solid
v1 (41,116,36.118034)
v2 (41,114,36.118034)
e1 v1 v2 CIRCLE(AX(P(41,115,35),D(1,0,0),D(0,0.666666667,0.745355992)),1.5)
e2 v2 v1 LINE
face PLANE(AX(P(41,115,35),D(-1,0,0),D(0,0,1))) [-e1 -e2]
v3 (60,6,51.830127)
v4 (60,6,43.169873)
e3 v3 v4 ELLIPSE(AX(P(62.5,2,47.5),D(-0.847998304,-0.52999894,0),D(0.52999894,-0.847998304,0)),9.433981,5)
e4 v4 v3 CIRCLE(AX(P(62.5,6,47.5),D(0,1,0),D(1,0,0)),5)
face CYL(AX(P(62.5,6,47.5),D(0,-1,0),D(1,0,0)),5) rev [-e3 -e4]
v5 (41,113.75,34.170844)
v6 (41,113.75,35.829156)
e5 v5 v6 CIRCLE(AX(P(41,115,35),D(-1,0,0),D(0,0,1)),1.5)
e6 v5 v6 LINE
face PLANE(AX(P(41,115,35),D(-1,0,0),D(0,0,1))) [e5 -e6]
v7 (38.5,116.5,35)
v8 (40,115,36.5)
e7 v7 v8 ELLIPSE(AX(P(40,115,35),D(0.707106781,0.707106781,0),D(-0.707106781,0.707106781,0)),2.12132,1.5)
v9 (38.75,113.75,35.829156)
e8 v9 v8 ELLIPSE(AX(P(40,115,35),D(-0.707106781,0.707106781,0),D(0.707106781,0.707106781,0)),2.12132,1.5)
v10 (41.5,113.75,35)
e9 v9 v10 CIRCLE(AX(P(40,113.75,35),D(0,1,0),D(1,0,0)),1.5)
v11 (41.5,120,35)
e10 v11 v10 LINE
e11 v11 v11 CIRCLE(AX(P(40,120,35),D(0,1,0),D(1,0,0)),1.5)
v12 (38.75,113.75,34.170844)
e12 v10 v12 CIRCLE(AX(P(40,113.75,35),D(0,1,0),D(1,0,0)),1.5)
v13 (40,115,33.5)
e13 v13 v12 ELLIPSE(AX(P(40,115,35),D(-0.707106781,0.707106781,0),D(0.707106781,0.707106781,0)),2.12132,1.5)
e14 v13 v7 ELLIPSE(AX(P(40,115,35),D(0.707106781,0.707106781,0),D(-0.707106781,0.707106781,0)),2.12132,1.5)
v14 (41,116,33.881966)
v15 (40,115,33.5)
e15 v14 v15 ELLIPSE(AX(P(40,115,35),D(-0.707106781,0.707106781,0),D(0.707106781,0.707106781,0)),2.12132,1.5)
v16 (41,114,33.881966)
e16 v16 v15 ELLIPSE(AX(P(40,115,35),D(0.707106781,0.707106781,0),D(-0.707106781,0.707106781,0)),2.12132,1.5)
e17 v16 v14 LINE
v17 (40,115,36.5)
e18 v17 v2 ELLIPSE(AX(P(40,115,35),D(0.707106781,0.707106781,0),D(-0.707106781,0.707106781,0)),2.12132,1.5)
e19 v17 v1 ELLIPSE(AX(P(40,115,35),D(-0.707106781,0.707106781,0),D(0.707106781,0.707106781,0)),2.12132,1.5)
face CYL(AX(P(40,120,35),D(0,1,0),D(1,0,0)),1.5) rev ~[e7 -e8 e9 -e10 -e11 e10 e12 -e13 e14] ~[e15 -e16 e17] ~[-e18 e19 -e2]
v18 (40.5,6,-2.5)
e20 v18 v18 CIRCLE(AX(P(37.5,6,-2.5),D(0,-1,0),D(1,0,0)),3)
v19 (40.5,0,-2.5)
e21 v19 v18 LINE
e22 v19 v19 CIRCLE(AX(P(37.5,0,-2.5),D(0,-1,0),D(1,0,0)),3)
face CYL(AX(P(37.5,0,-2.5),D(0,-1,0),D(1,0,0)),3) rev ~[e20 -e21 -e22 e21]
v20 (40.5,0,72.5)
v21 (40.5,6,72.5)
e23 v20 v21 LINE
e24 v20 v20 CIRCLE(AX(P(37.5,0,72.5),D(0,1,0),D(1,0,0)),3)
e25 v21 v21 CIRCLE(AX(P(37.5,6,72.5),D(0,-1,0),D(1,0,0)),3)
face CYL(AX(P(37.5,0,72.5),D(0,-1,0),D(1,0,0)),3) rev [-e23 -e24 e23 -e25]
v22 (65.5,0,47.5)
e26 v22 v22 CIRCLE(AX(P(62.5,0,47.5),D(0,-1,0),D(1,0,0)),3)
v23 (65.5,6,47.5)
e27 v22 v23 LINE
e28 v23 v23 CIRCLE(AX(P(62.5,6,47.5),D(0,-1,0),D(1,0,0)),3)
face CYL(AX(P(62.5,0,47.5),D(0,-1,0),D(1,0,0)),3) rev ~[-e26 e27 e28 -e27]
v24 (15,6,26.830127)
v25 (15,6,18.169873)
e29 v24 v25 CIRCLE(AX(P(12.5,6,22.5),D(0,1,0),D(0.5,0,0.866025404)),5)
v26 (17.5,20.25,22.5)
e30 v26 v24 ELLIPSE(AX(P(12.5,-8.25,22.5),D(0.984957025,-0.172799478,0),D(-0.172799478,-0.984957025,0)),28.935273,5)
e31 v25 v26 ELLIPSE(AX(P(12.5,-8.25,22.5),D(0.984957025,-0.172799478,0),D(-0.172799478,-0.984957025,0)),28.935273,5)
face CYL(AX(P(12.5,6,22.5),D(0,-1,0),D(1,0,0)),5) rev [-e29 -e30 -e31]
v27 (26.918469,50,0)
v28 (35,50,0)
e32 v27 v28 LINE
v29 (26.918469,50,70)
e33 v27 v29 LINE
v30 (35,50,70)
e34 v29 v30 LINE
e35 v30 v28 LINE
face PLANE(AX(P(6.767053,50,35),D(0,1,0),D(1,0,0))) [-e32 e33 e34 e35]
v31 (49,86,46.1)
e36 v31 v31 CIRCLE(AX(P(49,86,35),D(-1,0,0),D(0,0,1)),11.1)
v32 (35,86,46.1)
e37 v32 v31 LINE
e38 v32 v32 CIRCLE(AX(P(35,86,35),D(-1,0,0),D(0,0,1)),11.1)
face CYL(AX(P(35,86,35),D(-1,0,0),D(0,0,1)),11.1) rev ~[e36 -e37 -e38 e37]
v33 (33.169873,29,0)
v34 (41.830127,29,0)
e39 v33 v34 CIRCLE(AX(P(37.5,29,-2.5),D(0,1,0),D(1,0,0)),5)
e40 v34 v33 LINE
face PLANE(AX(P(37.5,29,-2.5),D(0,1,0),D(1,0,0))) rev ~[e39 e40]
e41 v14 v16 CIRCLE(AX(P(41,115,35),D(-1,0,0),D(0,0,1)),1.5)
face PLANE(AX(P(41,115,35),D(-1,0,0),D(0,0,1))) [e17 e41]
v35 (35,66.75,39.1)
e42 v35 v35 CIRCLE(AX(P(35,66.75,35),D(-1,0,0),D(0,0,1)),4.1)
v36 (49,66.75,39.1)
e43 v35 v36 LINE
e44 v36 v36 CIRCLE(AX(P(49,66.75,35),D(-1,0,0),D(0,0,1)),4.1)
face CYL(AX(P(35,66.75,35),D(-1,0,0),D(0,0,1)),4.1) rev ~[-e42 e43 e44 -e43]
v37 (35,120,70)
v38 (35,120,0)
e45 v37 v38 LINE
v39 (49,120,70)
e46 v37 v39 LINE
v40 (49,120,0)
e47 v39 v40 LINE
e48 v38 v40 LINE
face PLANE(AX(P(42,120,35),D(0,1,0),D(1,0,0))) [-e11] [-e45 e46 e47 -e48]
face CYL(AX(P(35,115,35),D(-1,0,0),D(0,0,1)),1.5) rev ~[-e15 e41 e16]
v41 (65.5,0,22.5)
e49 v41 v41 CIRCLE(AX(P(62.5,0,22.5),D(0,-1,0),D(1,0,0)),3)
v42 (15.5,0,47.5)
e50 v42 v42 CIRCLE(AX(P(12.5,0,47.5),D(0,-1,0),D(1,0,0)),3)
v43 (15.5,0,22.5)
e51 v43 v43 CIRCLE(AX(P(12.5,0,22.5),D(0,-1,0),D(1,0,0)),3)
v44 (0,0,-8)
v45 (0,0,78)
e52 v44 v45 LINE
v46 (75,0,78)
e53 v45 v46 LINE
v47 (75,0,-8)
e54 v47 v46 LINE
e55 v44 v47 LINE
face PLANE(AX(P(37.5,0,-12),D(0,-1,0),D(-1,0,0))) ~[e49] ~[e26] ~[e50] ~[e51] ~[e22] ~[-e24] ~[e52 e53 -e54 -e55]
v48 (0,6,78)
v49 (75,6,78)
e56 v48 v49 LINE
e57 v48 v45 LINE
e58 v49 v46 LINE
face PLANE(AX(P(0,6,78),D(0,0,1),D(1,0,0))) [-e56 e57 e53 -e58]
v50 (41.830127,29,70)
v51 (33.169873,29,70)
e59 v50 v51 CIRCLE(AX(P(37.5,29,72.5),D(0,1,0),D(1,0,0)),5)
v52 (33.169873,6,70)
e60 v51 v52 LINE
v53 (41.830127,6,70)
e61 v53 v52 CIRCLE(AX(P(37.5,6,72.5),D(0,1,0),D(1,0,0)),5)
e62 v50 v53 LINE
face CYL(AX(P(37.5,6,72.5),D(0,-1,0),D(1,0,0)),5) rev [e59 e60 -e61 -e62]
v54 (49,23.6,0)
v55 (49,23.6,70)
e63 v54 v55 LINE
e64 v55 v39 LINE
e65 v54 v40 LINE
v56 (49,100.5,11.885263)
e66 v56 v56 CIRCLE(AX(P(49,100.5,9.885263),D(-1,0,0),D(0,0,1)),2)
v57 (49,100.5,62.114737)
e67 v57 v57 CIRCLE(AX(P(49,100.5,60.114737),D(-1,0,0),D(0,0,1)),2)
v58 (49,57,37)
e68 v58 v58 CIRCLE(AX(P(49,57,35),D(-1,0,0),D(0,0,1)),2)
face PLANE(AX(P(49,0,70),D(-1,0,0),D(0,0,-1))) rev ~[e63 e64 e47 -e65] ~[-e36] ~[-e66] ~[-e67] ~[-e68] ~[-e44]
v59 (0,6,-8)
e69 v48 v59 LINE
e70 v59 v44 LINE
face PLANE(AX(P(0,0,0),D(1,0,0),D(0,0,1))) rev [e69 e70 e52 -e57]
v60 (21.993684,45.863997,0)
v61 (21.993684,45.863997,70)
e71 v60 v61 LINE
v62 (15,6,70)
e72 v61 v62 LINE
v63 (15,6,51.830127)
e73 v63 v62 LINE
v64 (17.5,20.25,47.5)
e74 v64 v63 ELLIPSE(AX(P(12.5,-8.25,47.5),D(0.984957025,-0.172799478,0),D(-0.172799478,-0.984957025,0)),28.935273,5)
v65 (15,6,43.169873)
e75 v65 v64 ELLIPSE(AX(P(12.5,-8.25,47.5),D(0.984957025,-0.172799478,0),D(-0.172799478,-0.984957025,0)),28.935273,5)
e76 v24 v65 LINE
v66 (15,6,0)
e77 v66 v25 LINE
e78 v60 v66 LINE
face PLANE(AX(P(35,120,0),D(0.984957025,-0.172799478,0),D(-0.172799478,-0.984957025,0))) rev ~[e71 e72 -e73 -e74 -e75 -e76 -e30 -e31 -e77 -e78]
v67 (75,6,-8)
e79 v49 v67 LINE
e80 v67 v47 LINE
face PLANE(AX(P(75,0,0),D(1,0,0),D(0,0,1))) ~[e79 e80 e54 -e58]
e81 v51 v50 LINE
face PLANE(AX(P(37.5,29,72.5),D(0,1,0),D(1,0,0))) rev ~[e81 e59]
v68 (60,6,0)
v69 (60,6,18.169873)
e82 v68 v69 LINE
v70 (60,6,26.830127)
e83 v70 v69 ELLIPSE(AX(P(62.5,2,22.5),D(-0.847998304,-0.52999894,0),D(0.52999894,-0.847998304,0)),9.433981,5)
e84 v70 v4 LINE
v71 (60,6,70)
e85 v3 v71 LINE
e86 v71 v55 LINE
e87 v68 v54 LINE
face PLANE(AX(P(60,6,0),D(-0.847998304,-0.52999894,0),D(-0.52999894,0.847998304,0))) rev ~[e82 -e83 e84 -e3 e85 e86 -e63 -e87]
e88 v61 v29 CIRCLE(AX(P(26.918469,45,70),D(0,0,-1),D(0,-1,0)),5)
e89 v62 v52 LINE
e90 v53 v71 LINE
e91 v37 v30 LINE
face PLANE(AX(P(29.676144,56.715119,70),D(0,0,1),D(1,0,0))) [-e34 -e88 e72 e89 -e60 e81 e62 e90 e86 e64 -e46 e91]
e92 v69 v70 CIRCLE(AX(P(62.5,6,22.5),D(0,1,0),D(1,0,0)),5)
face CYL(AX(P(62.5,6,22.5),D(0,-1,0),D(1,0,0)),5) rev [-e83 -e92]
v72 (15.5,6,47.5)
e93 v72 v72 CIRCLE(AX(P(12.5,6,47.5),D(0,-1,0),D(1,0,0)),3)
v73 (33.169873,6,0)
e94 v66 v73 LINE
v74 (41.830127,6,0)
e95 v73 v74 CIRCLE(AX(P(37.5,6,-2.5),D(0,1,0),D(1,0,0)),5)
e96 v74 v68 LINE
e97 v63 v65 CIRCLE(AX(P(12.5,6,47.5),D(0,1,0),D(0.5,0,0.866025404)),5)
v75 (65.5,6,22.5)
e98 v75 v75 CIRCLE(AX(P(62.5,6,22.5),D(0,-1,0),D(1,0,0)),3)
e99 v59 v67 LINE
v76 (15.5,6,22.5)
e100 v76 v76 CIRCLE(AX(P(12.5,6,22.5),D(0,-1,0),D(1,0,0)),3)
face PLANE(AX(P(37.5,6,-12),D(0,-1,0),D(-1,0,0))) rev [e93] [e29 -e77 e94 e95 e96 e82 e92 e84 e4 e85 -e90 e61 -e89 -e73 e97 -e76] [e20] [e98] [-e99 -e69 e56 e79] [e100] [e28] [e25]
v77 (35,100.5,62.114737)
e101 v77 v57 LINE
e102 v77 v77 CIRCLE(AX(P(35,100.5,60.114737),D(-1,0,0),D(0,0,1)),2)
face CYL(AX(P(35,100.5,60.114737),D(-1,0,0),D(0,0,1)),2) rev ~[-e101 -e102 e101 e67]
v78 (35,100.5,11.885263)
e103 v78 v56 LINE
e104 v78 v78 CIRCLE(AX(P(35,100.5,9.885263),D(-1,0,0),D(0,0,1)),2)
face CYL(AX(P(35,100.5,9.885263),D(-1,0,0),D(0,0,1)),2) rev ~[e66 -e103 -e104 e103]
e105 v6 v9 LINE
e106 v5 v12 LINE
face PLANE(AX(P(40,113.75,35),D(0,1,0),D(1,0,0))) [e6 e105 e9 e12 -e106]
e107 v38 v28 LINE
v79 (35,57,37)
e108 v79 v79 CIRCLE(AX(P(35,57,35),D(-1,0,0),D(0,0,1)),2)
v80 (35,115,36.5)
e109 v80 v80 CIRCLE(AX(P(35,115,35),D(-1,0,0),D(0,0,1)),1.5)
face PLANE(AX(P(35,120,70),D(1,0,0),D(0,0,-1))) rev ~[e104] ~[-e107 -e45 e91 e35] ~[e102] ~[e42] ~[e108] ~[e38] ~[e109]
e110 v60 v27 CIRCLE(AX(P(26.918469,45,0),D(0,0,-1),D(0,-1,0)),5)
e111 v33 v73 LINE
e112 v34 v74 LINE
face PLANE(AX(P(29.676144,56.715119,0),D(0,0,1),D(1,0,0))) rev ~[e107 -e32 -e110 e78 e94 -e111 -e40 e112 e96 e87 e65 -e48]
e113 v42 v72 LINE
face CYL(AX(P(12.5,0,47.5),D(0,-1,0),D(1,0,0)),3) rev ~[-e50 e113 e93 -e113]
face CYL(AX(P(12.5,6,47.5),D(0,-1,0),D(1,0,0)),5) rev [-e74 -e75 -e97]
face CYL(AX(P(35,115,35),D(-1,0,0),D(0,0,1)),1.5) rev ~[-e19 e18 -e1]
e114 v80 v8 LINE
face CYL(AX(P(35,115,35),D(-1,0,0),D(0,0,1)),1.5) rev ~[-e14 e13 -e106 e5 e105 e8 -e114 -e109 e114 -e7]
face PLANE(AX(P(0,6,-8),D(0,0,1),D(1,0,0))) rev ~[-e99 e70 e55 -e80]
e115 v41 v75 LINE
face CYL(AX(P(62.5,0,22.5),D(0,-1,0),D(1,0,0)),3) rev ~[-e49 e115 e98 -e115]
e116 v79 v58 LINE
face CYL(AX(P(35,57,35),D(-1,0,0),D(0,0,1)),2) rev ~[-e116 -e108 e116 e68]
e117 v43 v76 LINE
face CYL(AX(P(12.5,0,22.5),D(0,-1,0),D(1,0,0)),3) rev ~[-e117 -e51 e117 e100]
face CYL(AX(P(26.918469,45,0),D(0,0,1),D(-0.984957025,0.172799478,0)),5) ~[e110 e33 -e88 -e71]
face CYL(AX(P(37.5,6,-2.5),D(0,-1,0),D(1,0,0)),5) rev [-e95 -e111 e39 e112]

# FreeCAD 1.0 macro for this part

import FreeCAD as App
import Part
import Sketcher

V = App.Vector
Q = App.Units.Quantity


def edges_at(feature, points):
    """Names of the edges that pass closest to the given points."""
    edges = feature.Shape.Edges
    near = lambda p: min(range(len(edges)), key=lambda i: edges[i].distToShape(Part.Vertex(*p))[0])
    return sorted({f"Edge{near(p) + 1}" for p in points})

doc = App.newDocument("Part")
body = doc.addObject("PartDesign::Body", "Body")

# Sketch on XZ plane
sketch1 = body.newObject("Sketcher::SketchObject", "Sketch")
sketch1.AttachmentSupport = (doc.getObject("XZ_Plane"), [""])
sketch1.MapMode = "FlatFace"
sketch1.addGeometry(Part.LineSegment(V(0, 0, 0), V(0, 70, 0)), False)
sketch1.addGeometry(Part.LineSegment(V(0, 70, 0), V(35, 70, 0)), False)
sketch1.addGeometry(Part.LineSegment(V(35, 70, 0), V(35, 0, 0)), False)
sketch1.addGeometry(Part.LineSegment(V(35, 0, 0), V(0, 0, 0)), False)
sketch1.addConstraint(Sketcher.Constraint("Coincident", 0, 2, 1, 1))
sketch1.addConstraint(Sketcher.Constraint("Coincident", 1, 2, 2, 1))
sketch1.addConstraint(Sketcher.Constraint("Coincident", 2, 2, 3, 1))
sketch1.addConstraint(Sketcher.Constraint("Coincident", 3, 2, 0, 1))
sketch1.addConstraint(Sketcher.Constraint("Vertical", 0))
sketch1.addConstraint(Sketcher.Constraint("Horizontal", 1))
sketch1.addConstraint(Sketcher.Constraint("Vertical", 2))
sketch1.addConstraint(Sketcher.Constraint("Horizontal", 3))
sketch1.addConstraint(Sketcher.Constraint("Coincident", 3, 2, -1, 1))
sketch1.addConstraint(Sketcher.Constraint("DistanceX", 1, 1, 1, 2, Q("35 mm")))
sketch1.addConstraint(Sketcher.Constraint("DistanceY", 0, 1, 0, 2, Q("70 mm")))
pad1 = body.newObject("PartDesign::Pad", "Pad")
pad1.Profile = sketch1
pad1.Length = 6
pad1.Reversed = True
body2 = doc.addObject("PartDesign::Body", "Body001")

# Sketch on XZ plane
sketch2 = body2.newObject("Sketcher::SketchObject", "Sketch001")
sketch2.AttachmentSupport = (doc.getObject("XZ_Plane001"), [""])
sketch2.MapMode = "FlatFace"
sketch2.addGeometry(Part.LineSegment(V(49, 0, 0), V(49, 70, 0)), False)
sketch2.addGeometry(Part.LineSegment(V(49, 70, 0), V(75, 70, 0)), False)
sketch2.addGeometry(Part.LineSegment(V(75, 70, 0), V(75, 0, 0)), False)
sketch2.addGeometry(Part.LineSegment(V(75, 0, 0), V(49, 0, 0)), False)
sketch2.addConstraint(Sketcher.Constraint("Coincident", 0, 2, 1, 1))
sketch2.addConstraint(Sketcher.Constraint("Coincident", 1, 2, 2, 1))
sketch2.addConstraint(Sketcher.Constraint("Coincident", 2, 2, 3, 1))
sketch2.addConstraint(Sketcher.Constraint("Coincident", 3, 2, 0, 1))
sketch2.addConstraint(Sketcher.Constraint("Vertical", 0))
sketch2.addConstraint(Sketcher.Constraint("Horizontal", 1))
sketch2.addConstraint(Sketcher.Constraint("Vertical", 2))
sketch2.addConstraint(Sketcher.Constraint("Horizontal", 3))
sketch2.addConstraint(Sketcher.Constraint("PointOnObject", 2, 2, -1))
sketch2.addConstraint(Sketcher.Constraint("DistanceX", 1, 1, 1, 2, Q("26 mm")))
sketch2.addConstraint(Sketcher.Constraint("DistanceY", 0, 1, 0, 2, Q("70 mm")))
sketch2.addConstraint(Sketcher.Constraint("DistanceX", -1, 1, 0, 2, Q("49 mm")))
pad2 = body2.newObject("PartDesign::Pad", "Pad001")
pad2.Profile = sketch2
pad2.Length = 6
pad2.Reversed = True
body.AllowCompound = True
doc.recompute()

boolean = body.newObject("PartDesign::Boolean", "Boolean")
boolean.Type = "Fuse"
boolean.addObjects([body2])

# Sketch on XZ plane
sketch3 = body.newObject("Sketcher::SketchObject", "Sketch002")
sketch3.AttachmentSupport = (doc.getObject("XZ_Plane"), [""])
sketch3.MapMode = "FlatFace"
sketch3.addGeometry(Part.LineSegment(V(35, 0, 0), V(35, 70, 0)), False)
sketch3.addGeometry(Part.LineSegment(V(35, 70, 0), V(49, 70, 0)), False)
sketch3.addGeometry(Part.LineSegment(V(49, 70, 0), V(49, 0, 0)), False)
sketch3.addGeometry(Part.LineSegment(V(49, 0, 0), V(35, 0, 0)), False)
sketch3.addConstraint(Sketcher.Constraint("Coincident", 0, 2, 1, 1))
sketch3.addConstraint(Sketcher.Constraint("Coincident", 1, 2, 2, 1))
sketch3.addConstraint(Sketcher.Constraint("Coincident", 2, 2, 3, 1))
sketch3.addConstraint(Sketcher.Constraint("Coincident", 3, 2, 0, 1))
sketch3.addConstraint(Sketcher.Constraint("Vertical", 0))
sketch3.addConstraint(Sketcher.Constraint("Horizontal", 1))
sketch3.addConstraint(Sketcher.Constraint("Vertical", 2))
sketch3.addConstraint(Sketcher.Constraint("Horizontal", 3))
sketch3.addConstraint(Sketcher.Constraint("PointOnObject", 2, 2, -1))
sketch3.addConstraint(Sketcher.Constraint("DistanceX", 1, 1, 1, 2, Q("14 mm")))
sketch3.addConstraint(Sketcher.Constraint("DistanceY", 0, 1, 0, 2, Q("70 mm")))
sketch3.addConstraint(Sketcher.Constraint("DistanceX", -1, 1, 0, 2, Q("35 mm")))
pad3 = body.newObject("PartDesign::Pad", "Pad002")
pad3.Profile = sketch3
pad3.Length = 120
pad3.Reversed = True

# Sketch on XY plane
sketch4 = body.newObject("Sketcher::SketchObject", "Sketch003")
sketch4.AttachmentSupport = (doc.getObject("XY_Plane"), [""])
sketch4.MapMode = "FlatFace"
sketch4.addGeometry(Part.LineSegment(V(35, 6, 0), V(15, 6, 0)), False)
sketch4.addGeometry(Part.LineSegment(V(15, 6, 0), V(35, 38, 0)), False)
sketch4.addGeometry(Part.LineSegment(V(35, 38, 0), V(35, 6, 0)), False)
sketch4.addGeometry(Part.LineSegment(V(40, 38, 0), V(60, 6, 0)), False)
sketch4.addGeometry(Part.LineSegment(V(60, 6, 0), V(40, 6, 0)), False)
sketch4.addGeometry(Part.LineSegment(V(40, 6, 0), V(40, 38, 0)), False)
sketch4.addConstraint(Sketcher.Constraint("Coincident", 0, 2, 1, 1))
sketch4.addConstraint(Sketcher.Constraint("Coincident", 1, 2, 2, 1))
sketch4.addConstraint(Sketcher.Constraint("Coincident", 2, 2, 0, 1))
sketch4.addConstraint(Sketcher.Constraint("Coincident", 3, 2, 4, 1))
sketch4.addConstraint(Sketcher.Constraint("Coincident", 4, 2, 5, 1))
sketch4.addConstraint(Sketcher.Constraint("Coincident", 5, 2, 3, 1))
sketch4.addConstraint(Sketcher.Constraint("Horizontal", 0))
sketch4.addConstraint(Sketcher.Constraint("Vertical", 2))
sketch4.addConstraint(Sketcher.Constraint("Horizontal", 4))
sketch4.addConstraint(Sketcher.Constraint("Vertical", 5))
sketch4.addConstraint(Sketcher.Constraint("Horizontal", 2, 2, 3, 2))
sketch4.addConstraint(Sketcher.Constraint("Horizontal", 1, 2, 5, 2))
sketch4.addConstraint(Sketcher.Constraint("Equal", 0, 4))
sketch4.addConstraint(Sketcher.Constraint("DistanceX", 0, 2, 0, 1, Q("20 mm")))
sketch4.addConstraint(Sketcher.Constraint("DistanceY", 2, 2, 2, 1, Q("32 mm")))
sketch4.addConstraint(Sketcher.Constraint("DistanceX", -1, 1, 0, 2, Q("15 mm")))
sketch4.addConstraint(Sketcher.Constraint("DistanceY", -1, 1, 0, 2, Q("6 mm")))
sketch4.addConstraint(Sketcher.Constraint("DistanceX", -1, 1, 3, 2, Q("60 mm")))
pad4 = body.newObject("PartDesign::Pad", "Pad003")
pad4.Profile = sketch4
pad4.Type = "UpToLast"

# Sketch on XY plane
sketch5 = body.newObject("Sketcher::SketchObject", "Sketch004")
sketch5.AttachmentSupport = (doc.getObject("XY_Plane"), [""])
sketch5.MapMode = "FlatFace"
sketch5.addGeometry(Part.LineSegment(V(15, 6, 0), V(35, 120, 0)), False)
sketch5.addGeometry(Part.LineSegment(V(35, 120, 0), V(35, 0, 0)), False)
sketch5.addGeometry(Part.LineSegment(V(35, 0, 0), V(15, 6, 0)), False)
sketch5.addConstraint(Sketcher.Constraint("Coincident", 0, 2, 1, 1))
sketch5.addConstraint(Sketcher.Constraint("Coincident", 1, 2, 2, 1))
sketch5.addConstraint(Sketcher.Constraint("Coincident", 2, 2, 0, 1))
sketch5.addConstraint(Sketcher.Constraint("Vertical", 1))
sketch5.addConstraint(Sketcher.Constraint("PointOnObject", 1, 2, -1))
sketch5.addConstraint(Sketcher.Constraint("DistanceY", 1, 2, 1, 1, Q("120 mm")))
sketch5.addConstraint(Sketcher.Constraint("DistanceX", -1, 1, 0, 2, Q("35 mm")))
sketch5.addConstraint(Sketcher.Constraint("DistanceX", -1, 1, 2, 2, Q("15 mm")))
sketch5.addConstraint(Sketcher.Constraint("DistanceY", -1, 1, 2, 2, Q("6 mm")))
pad5 = body.newObject("PartDesign::Pad", "Pad004")
pad5.Profile = sketch5
pad5.Length = 70

# Sketch on XZ plane
sketch6 = body.newObject("Sketcher::SketchObject", "Sketch005")
sketch6.AttachmentSupport = (doc.getObject("XZ_Plane"), [""])
sketch6.MapMode = "FlatFace"
sketch6.addGeometry(Part.Circle(V(62.5, 47.5, 0), V(0, 0, 1), 3), False)
sketch6.addGeometry(Part.Circle(V(62.5, 22.5, 0), V(0, 0, 1), 3), False)
sketch6.addGeometry(Part.Circle(V(12.5, 22.5, 0), V(0, 0, 1), 3), False)
sketch6.addGeometry(Part.Circle(V(12.5, 47.5, 0), V(0, 0, 1), 3), False)
sketch6.addConstraint(Sketcher.Constraint("Equal", 0, 1))
sketch6.addConstraint(Sketcher.Constraint("Equal", 1, 2))
sketch6.addConstraint(Sketcher.Constraint("Equal", 2, 3))
sketch6.addConstraint(Sketcher.Constraint("Horizontal", 1, 3, 2, 3))
sketch6.addConstraint(Sketcher.Constraint("Horizontal", 0, 3, 3, 3))
sketch6.addConstraint(Sketcher.Constraint("Vertical", 0, 3, 1, 3))
sketch6.addConstraint(Sketcher.Constraint("Vertical", 2, 3, 3, 3))
sketch6.addConstraint(Sketcher.Constraint("Diameter", 0, Q("6 mm")))
sketch6.addConstraint(Sketcher.Constraint("DistanceY", 1, 3, 0, 3, Q("25 mm")))
sketch6.addConstraint(Sketcher.Constraint("DistanceX", 2, 3, 1, 3, Q("50 mm")))
sketch6.addConstraint(Sketcher.Constraint("DistanceX", -1, 1, 0, 3, Q("62.5 mm")))
sketch6.addConstraint(Sketcher.Constraint("DistanceY", -1, 1, 0, 3, Q("47.5 mm")))
pocket1 = body.newObject("PartDesign::Pocket", "Pocket")
pocket1.Profile = sketch6
pocket1.Type = "ThroughAll"

# Sketch on XZ plane
sketch7 = body.newObject("Sketcher::SketchObject", "Sketch006")
sketch7.AttachmentSupport = (doc.getObject("XZ_Plane"), [""])
sketch7.MapMode = "FlatFace"
sketch7.AttachmentOffset = App.Placement(V(0, 0, -6), App.Rotation())
sketch7.addGeometry(Part.Circle(V(12.5, 47.5, 0), V(0, 0, 1), 5), False)
sketch7.addGeometry(Part.Circle(V(12.5, 22.5, 0), V(0, 0, 1), 5), False)
sketch7.addGeometry(Part.Circle(V(62.5, 47.5, 0), V(0, 0, 1), 5), False)
sketch7.addGeometry(Part.Circle(V(62.5, 22.5, 0), V(0, 0, 1), 5), False)
sketch7.addConstraint(Sketcher.Constraint("Equal", 0, 1))
sketch7.addConstraint(Sketcher.Constraint("Equal", 1, 2))
sketch7.addConstraint(Sketcher.Constraint("Equal", 2, 3))
sketch7.addConstraint(Sketcher.Constraint("Horizontal", 0, 3, 2, 3))
sketch7.addConstraint(Sketcher.Constraint("Horizontal", 1, 3, 3, 3))
sketch7.addConstraint(Sketcher.Constraint("Vertical", 0, 3, 1, 3))
sketch7.addConstraint(Sketcher.Constraint("Vertical", 2, 3, 3, 3))
sketch7.addConstraint(Sketcher.Constraint("Diameter", 0, Q("10 mm")))
sketch7.addConstraint(Sketcher.Constraint("DistanceY", 1, 3, 0, 3, Q("25 mm")))
sketch7.addConstraint(Sketcher.Constraint("DistanceX", 0, 3, 2, 3, Q("50 mm")))
sketch7.addConstraint(Sketcher.Constraint("DistanceX", -1, 1, 0, 3, Q("12.5 mm")))
sketch7.addConstraint(Sketcher.Constraint("DistanceY", -1, 1, 0, 3, Q("47.5 mm")))
pocket2 = body.newObject("PartDesign::Pocket", "Pocket001")
pocket2.Profile = sketch7
pocket2.Length = 115

# Sketch on YZ plane
sketch8 = body.newObject("Sketcher::SketchObject", "Sketch007")
sketch8.AttachmentSupport = (doc.getObject("YZ_Plane"), [""])
sketch8.MapMode = "FlatFace"
sketch8.AttachmentOffset = App.Placement(V(0, 0, 35), App.Rotation())
sketch8.addGeometry(Part.Circle(V(86, 35, 0), V(0, 0, 1), 11.1), False)
sketch8.addGeometry(Part.Circle(V(66.75, 35, 0), V(0, 0, 1), 4.1), False)
sketch8.addGeometry(Part.Circle(V(57, 35, 0), V(0, 0, 1), 2), False)
sketch8.addGeometry(Part.Circle(V(100.5, 9.885263, 0), V(0, 0, 1), 2), False)
sketch8.addGeometry(Part.Circle(V(100.5, 60.114737, 0), V(0, 0, 1), 2), False)
sketch8.addConstraint(Sketcher.Constraint("Equal", 2, 3))
sketch8.addConstraint(Sketcher.Constraint("Equal", 3, 4))
sketch8.addConstraint(Sketcher.Constraint("Horizontal", 0, 3, 1, 3))
sketch8.addConstraint(Sketcher.Constraint("Horizontal", 1, 3, 2, 3))
sketch8.addConstraint(Sketcher.Constraint("Vertical", 3, 3, 4, 3))
sketch8.addConstraint(Sketcher.Constraint("Diameter", 2, Q("4 mm")))
sketch8.addConstraint(Sketcher.Constraint("Diameter", 0, Q("22.2 mm")))
sketch8.addConstraint(Sketcher.Constraint("Diameter", 1, Q("8.2 mm")))
sketch8.addConstraint(Sketcher.Constraint("DistanceX", -1, 1, 0, 3, Q("86 mm")))
sketch8.addConstraint(Sketcher.Constraint("DistanceY", -1, 1, 0, 3, Q("35 mm")))
sketch8.addConstraint(Sketcher.Constraint("DistanceX", -1, 1, 2, 3, Q("57 mm")))
sketch8.addConstraint(Sketcher.Constraint("DistanceX", -1, 1, 3, 3, Q("100.5 mm")))
sketch8.addConstraint(Sketcher.Constraint("DistanceX", -1, 1, 1, 3, Q("66.75 mm")))
sketch8.addConstraint(Sketcher.Constraint("DistanceY", -1, 1, 3, 3, Q("9.885263 mm")))
sketch8.addConstraint(Sketcher.Constraint("DistanceY", -1, 1, 4, 3, Q("60.114737 mm")))
pocket3 = body.newObject("PartDesign::Pocket", "Pocket002")
pocket3.Profile = sketch8
pocket3.Type = "ThroughAll"
pocket3.Midplane = True

# Sketch on XZ plane
sketch9 = body.newObject("Sketcher::SketchObject", "Sketch008")
sketch9.AttachmentSupport = (doc.getObject("XZ_Plane"), [""])
sketch9.MapMode = "FlatFace"
sketch9.addGeometry(Part.LineSegment(V(0, 94, 0), V(0, 70, 0)), False)
sketch9.addGeometry(Part.LineSegment(V(0, 70, 0), V(75, 70, 0)), False)
sketch9.addGeometry(Part.LineSegment(V(75, 70, 0), V(75, 94, 0)), False)
sketch9.addGeometry(Part.LineSegment(V(75, 94, 0), V(0, 94, 0)), False)
sketch9.addConstraint(Sketcher.Constraint("Coincident", 0, 2, 1, 1))
sketch9.addConstraint(Sketcher.Constraint("Coincident", 1, 2, 2, 1))
sketch9.addConstraint(Sketcher.Constraint("Coincident", 2, 2, 3, 1))
sketch9.addConstraint(Sketcher.Constraint("Coincident", 3, 2, 0, 1))
sketch9.addConstraint(Sketcher.Constraint("Vertical", 0))
sketch9.addConstraint(Sketcher.Constraint("Horizontal", 1))
sketch9.addConstraint(Sketcher.Constraint("Vertical", 2))
sketch9.addConstraint(Sketcher.Constraint("Horizontal", 3))
sketch9.addConstraint(Sketcher.Constraint("PointOnObject", 0, 2, -2))
sketch9.addConstraint(Sketcher.Constraint("DistanceX", 1, 1, 1, 2, Q("75 mm")))
sketch9.addConstraint(Sketcher.Constraint("DistanceY", 0, 2, 0, 1, Q("24 mm")))
sketch9.addConstraint(Sketcher.Constraint("DistanceY", -1, 1, 0, 2, Q("70 mm")))
pad6 = body.newObject("PartDesign::Pad", "Pad005")
pad6.Profile = sketch9
pad6.Length = 6
pad6.Reversed = True

# Sketch on XZ plane
sketch10 = body.newObject("Sketcher::SketchObject", "Sketch009")
sketch10.AttachmentSupport = (doc.getObject("XZ_Plane"), [""])
sketch10.MapMode = "FlatFace"
sketch10.addGeometry(Part.Circle(V(37.5, 72.5, 0), V(0, 0, 1), 3), False)
sketch10.addConstraint(Sketcher.Constraint("Diameter", 0, Q("6 mm")))
sketch10.addConstraint(Sketcher.Constraint("DistanceX", -1, 1, 0, 3, Q("37.5 mm")))
sketch10.addConstraint(Sketcher.Constraint("DistanceY", -1, 1, 0, 3, Q("72.5 mm")))
pocket4 = body.newObject("PartDesign::Pocket", "Pocket003")
pocket4.Profile = sketch10
pocket4.Length = 29
doc.recompute()

datumplane = body.newObject("PartDesign::Plane", "DatumPlane")
datumplane.AttachmentSupport = (doc.getObject("XY_Plane"), [""])
datumplane.MapMode = "FlatFace"
datumplane.AttachmentOffset = App.Placement(V(0, 0, 35), App.Rotation())
mirrored = body.newObject("PartDesign::Mirrored", "Mirrored")
mirrored.Originals = [pad6, pocket4]
mirrored.MirrorPlane = (datumplane, [""])
body.Tip = mirrored

# Sketch on XZ plane
sketch11 = body.newObject("Sketcher::SketchObject", "Sketch010")
sketch11.AttachmentSupport = (doc.getObject("XZ_Plane"), [""])
sketch11.MapMode = "FlatFace"
sketch11.AttachmentOffset = App.Placement(V(0, 0, -120), App.Rotation())
sketch11.addGeometry(Part.LineSegment(V(-21.465893, 0, 0), V(-21.465893, 70, 0)), False)
sketch11.addGeometry(Part.LineSegment(V(-21.465893, 70, 0), V(35, 70, 0)), False)
sketch11.addGeometry(Part.LineSegment(V(35, 70, 0), V(35, 0, 0)), False)
sketch11.addGeometry(Part.LineSegment(V(35, 0, 0), V(-21.465893, 0, 0)), False)
sketch11.addConstraint(Sketcher.Constraint("Coincident", 0, 2, 1, 1))
sketch11.addConstraint(Sketcher.Constraint("Coincident", 1, 2, 2, 1))
sketch11.addConstraint(Sketcher.Constraint("Coincident", 2, 2, 3, 1))
sketch11.addConstraint(Sketcher.Constraint("Coincident", 3, 2, 0, 1))
sketch11.addConstraint(Sketcher.Constraint("Vertical", 0))
sketch11.addConstraint(Sketcher.Constraint("Horizontal", 1))
sketch11.addConstraint(Sketcher.Constraint("Vertical", 2))
sketch11.addConstraint(Sketcher.Constraint("Horizontal", 3))
sketch11.addConstraint(Sketcher.Constraint("PointOnObject", 2, 2, -1))
sketch11.addConstraint(Sketcher.Constraint("DistanceY", 0, 1, 0, 2, Q("70 mm")))
sketch11.addConstraint(Sketcher.Constraint("DistanceX", -1, 1, 1, 2, Q("35 mm")))
sketch11.addConstraint(Sketcher.Constraint("DistanceX", 1, 1, 1, 2, Q("56.465893 mm")))
pocket5 = body.newObject("PartDesign::Pocket", "Pocket004")
pocket5.Profile = sketch11
pocket5.Length = 70
pocket5.Reversed = True
doc.recompute()

fillet = body.newObject("PartDesign::Fillet", "Fillet")
fillet.Base = (pocket5, edges_at(pocket5, [(22.719, 50, 35)]))
fillet.Radius = 5

# Sketch on XZ plane
sketch12 = body.newObject("Sketcher::SketchObject", "Sketch011")
sketch12.AttachmentSupport = (doc.getObject("XZ_Plane"), [""])
sketch12.MapMode = "FlatFace"
sketch12.AttachmentOffset = App.Placement(V(0, 0, -6), App.Rotation())
sketch12.addGeometry(Part.Circle(V(37.5, 72.5, 0), V(0, 0, 1), 5), False)
sketch12.addGeometry(Part.Circle(V(37.5, -2.5, 0), V(0, 0, 1), 5), False)
sketch12.addConstraint(Sketcher.Constraint("Equal", 0, 1))
sketch12.addConstraint(Sketcher.Constraint("Vertical", 0, 3, 1, 3))
sketch12.addConstraint(Sketcher.Constraint("Diameter", 0, Q("10 mm")))
sketch12.addConstraint(Sketcher.Constraint("DistanceY", 1, 3, 0, 3, Q("75 mm")))
sketch12.addConstraint(Sketcher.Constraint("DistanceX", -1, 1, 0, 3, Q("37.5 mm")))
sketch12.addConstraint(Sketcher.Constraint("DistanceY", -1, 1, 0, 3, Q("72.5 mm")))
pocket6 = body.newObject("PartDesign::Pocket", "Pocket005")
pocket6.Profile = sketch12
pocket6.Length = 23

# Sketch on XZ plane
sketch13 = body.newObject("Sketcher::SketchObject", "Sketch012")
sketch13.AttachmentSupport = (doc.getObject("XZ_Plane"), [""])
sketch13.MapMode = "FlatFace"
sketch13.AttachmentOffset = App.Placement(V(0, 0, -6), App.Rotation())
sketch13.addGeometry(Part.LineSegment(V(0, -24, 0), V(0, -8, 0)), False)
sketch13.addGeometry(Part.LineSegment(V(0, -8, 0), V(75, -8, 0)), False)
sketch13.addGeometry(Part.LineSegment(V(75, -8, 0), V(75, -24, 0)), False)
sketch13.addGeometry(Part.LineSegment(V(75, -24, 0), V(0, -24, 0)), False)
sketch13.addGeometry(Part.LineSegment(V(0, 78, 0), V(0, 94, 0)), False)
sketch13.addGeometry(Part.LineSegment(V(0, 94, 0), V(75, 94, 0)), False)
sketch13.addGeometry(Part.LineSegment(V(75, 94, 0), V(75, 78, 0)), False)
sketch13.addGeometry(Part.LineSegment(V(75, 78, 0), V(0, 78, 0)), False)
sketch13.addConstraint(Sketcher.Constraint("Coincident", 0, 2, 1, 1))
sketch13.addConstraint(Sketcher.Constraint("Coincident", 1, 2, 2, 1))
sketch13.addConstraint(Sketcher.Constraint("Coincident", 2, 2, 3, 1))
sketch13.addConstraint(Sketcher.Constraint("Coincident", 3, 2, 0, 1))
sketch13.addConstraint(Sketcher.Constraint("Coincident", 4, 2, 5, 1))
sketch13.addConstraint(Sketcher.Constraint("Coincident", 5, 2, 6, 1))
sketch13.addConstraint(Sketcher.Constraint("Coincident", 6, 2, 7, 1))
sketch13.addConstraint(Sketcher.Constraint("Coincident", 7, 2, 4, 1))
sketch13.addConstraint(Sketcher.Constraint("Vertical", 0))
sketch13.addConstraint(Sketcher.Constraint("Horizontal", 1))
sketch13.addConstraint(Sketcher.Constraint("Vertical", 2))
sketch13.addConstraint(Sketcher.Constraint("Horizontal", 3))
sketch13.addConstraint(Sketcher.Constraint("Vertical", 4))
sketch13.addConstraint(Sketcher.Constraint("Horizontal", 5))
sketch13.addConstraint(Sketcher.Constraint("Vertical", 6))
sketch13.addConstraint(Sketcher.Constraint("Horizontal", 7))
sketch13.addConstraint(Sketcher.Constraint("PointOnObject", 0, 2, -2))
sketch13.addConstraint(Sketcher.Constraint("PointOnObject", 4, 2, -2))
sketch13.addConstraint(Sketcher.Constraint("Vertical", 2, 2, 5, 2))
sketch13.addConstraint(Sketcher.Constraint("Equal", 2, 4))
sketch13.addConstraint(Sketcher.Constraint("DistanceX", 1, 1, 1, 2, Q("75 mm")))
sketch13.addConstraint(Sketcher.Constraint("DistanceY", 0, 1, 0, 2, Q("16 mm")))
sketch13.addConstraint(Sketcher.Constraint("DistanceY", 0, 2, -1, 1, Q("8 mm")))
sketch13.addConstraint(Sketcher.Constraint("DistanceY", -1, 1, 4, 2, Q("94 mm")))
pocket7 = body.newObject("PartDesign::Pocket", "Pocket006")
pocket7.Profile = sketch13
pocket7.Length = 10
pocket7.Reversed = True

# Sketch on XZ plane
sketch14 = body.newObject("Sketcher::SketchObject", "Sketch013")
sketch14.AttachmentSupport = (doc.getObject("XZ_Plane"), [""])
sketch14.MapMode = "FlatFace"
sketch14.AttachmentOffset = App.Placement(V(0, 0, -120), App.Rotation())
sketch14.addGeometry(Part.Circle(V(40, 35, 0), V(0, 0, 1), 1.5), False)
sketch14.addConstraint(Sketcher.Constraint("Diameter", 0, Q("3 mm")))
sketch14.addConstraint(Sketcher.Constraint("DistanceX", -1, 1, 0, 3, Q("40 mm")))
sketch14.addConstraint(Sketcher.Constraint("DistanceY", -1, 1, 0, 3, Q("35 mm")))
pocket8 = body.newObject("PartDesign::Pocket", "Pocket007")
pocket8.Profile = sketch14
pocket8.Length = 6.25
pocket8.Reversed = True

# Sketch on YZ plane
sketch15 = body.newObject("Sketcher::SketchObject", "Sketch014")
sketch15.AttachmentSupport = (doc.getObject("YZ_Plane"), [""])
sketch15.MapMode = "FlatFace"
sketch15.AttachmentOffset = App.Placement(V(0, 0, 35), App.Rotation())
sketch15.addGeometry(Part.Circle(V(115, 35, 0), V(0, 0, 1), 1.5), False)
sketch15.addConstraint(Sketcher.Constraint("Diameter", 0, Q("3 mm")))
sketch15.addConstraint(Sketcher.Constraint("DistanceX", -1, 1, 0, 3, Q("115 mm")))
sketch15.addConstraint(Sketcher.Constraint("DistanceY", -1, 1, 0, 3, Q("35 mm")))
pocket9 = body.newObject("PartDesign::Pocket", "Pocket008")
pocket9.Profile = sketch15
pocket9.Length = 6
pocket9.Reversed = True

doc.recompute()
